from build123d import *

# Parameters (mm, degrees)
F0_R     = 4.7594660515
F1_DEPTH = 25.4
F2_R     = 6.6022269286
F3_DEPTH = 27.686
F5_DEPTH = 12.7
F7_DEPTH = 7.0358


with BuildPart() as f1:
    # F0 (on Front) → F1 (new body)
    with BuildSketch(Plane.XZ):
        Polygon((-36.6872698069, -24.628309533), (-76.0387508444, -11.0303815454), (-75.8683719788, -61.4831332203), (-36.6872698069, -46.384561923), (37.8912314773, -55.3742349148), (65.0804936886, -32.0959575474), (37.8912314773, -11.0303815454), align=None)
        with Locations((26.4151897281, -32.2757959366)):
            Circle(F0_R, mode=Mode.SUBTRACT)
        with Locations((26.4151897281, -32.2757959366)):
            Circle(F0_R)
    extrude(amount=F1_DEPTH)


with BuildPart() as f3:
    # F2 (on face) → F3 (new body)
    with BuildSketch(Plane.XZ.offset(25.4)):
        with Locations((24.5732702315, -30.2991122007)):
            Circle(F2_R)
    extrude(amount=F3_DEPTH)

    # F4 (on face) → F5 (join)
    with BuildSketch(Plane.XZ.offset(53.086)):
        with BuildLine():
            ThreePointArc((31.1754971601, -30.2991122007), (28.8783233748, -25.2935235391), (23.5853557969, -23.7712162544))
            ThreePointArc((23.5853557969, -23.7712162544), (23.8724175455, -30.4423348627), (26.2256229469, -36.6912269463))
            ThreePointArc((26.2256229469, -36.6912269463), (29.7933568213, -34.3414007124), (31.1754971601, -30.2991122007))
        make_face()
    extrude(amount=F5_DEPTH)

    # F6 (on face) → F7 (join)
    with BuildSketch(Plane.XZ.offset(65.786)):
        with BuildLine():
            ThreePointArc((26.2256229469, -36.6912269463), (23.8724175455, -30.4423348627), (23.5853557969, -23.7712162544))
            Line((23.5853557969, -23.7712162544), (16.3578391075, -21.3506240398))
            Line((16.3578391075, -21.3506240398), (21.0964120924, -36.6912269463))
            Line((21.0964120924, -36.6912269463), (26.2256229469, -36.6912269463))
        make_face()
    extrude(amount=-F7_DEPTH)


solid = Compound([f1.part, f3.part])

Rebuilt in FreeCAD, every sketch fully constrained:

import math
import FreeCAD as App
import Part
import Sketcher
Q = App.Units.Quantity

doc = App.newDocument("Part")
body = doc.addObject("PartDesign::Body", "Body")

sketch1 = body.newObject("Sketcher::SketchObject", "Sketch")
sketch1.AttachmentSupport = (doc.getObject("XZ_Plane"), [""])
sketch1.MapMode = "FlatFace"
sketch1.addGeometry(Part.LineSegment(App.Vector(-36.68727, -24.62831, 0), App.Vector(-76.038751, -11.030382, 0)), False)
sketch1.addGeometry(Part.LineSegment(App.Vector(-76.038751, -11.030382, 0), App.Vector(-75.868372, -61.483133, 0)), False)
sketch1.addGeometry(Part.LineSegment(App.Vector(-75.868372, -61.483133, 0), App.Vector(-36.68727, -46.384562, 0)), False)
sketch1.addGeometry(Part.LineSegment(App.Vector(-36.68727, -46.384562, 0), App.Vector(37.891231, -55.374235, 0)), False)
sketch1.addGeometry(Part.LineSegment(App.Vector(37.891231, -55.374235, 0), App.Vector(65.080494, -32.095958, 0)), False)
sketch1.addGeometry(Part.LineSegment(App.Vector(65.080494, -32.095958, 0), App.Vector(37.891231, -11.030382, 0)), False)
sketch1.addGeometry(Part.LineSegment(App.Vector(37.891231, -11.030382, 0), App.Vector(-36.68727, -24.62831, 0)), False)
sketch1.addConstraint(Sketcher.Constraint("Coincident", 0, 2, 1, 1))
sketch1.addConstraint(Sketcher.Constraint("Coincident", 1, 2, 2, 1))
sketch1.addConstraint(Sketcher.Constraint("Coincident", 2, 2, 3, 1))
sketch1.addConstraint(Sketcher.Constraint("Coincident", 3, 2, 4, 1))
sketch1.addConstraint(Sketcher.Constraint("Coincident", 4, 2, 5, 1))
sketch1.addConstraint(Sketcher.Constraint("Coincident", 5, 2, 6, 1))
sketch1.addConstraint(Sketcher.Constraint("Coincident", 6, 2, 0, 1))
sketch1.addConstraint(Sketcher.Constraint("Horizontal", 0, 2, 5, 2))
sketch1.addConstraint(Sketcher.Constraint("Vertical", 3, 2, 5, 2))
sketch1.addConstraint(Sketcher.Constraint("Vertical", 2, 2, 6, 2))
sketch1.addConstraint(Sketcher.Constraint("DistanceX", 2, 2, 3, 2, 74.578501))
sketch1.addConstraint(Sketcher.Constraint("DistanceY", 1, 2, 3, 2, 6.108898))
sketch1.addConstraint(Sketcher.Constraint("Distance", 1, 50.453039))
sketch1.addConstraint(Sketcher.Constraint("Distance", 2, 41.989589))
sketch1.addConstraint(Sketcher.Constraint("DistanceX", 0, 2, -1, 1, 76.038751))
sketch1.addConstraint(Sketcher.Constraint("DistanceY", 0, 2, -1, 1, 11.030382))
sketch1.addConstraint(Sketcher.Constraint("DistanceX", 1, 2, -1, 1, 75.868372))
sketch1.addConstraint(Sketcher.Constraint("DistanceX", 2, 2, -1, 1, 36.68727))
sketch1.addConstraint(Sketcher.Constraint("DistanceY", 6, 2, -1, 1, 24.62831))
sketch1.addConstraint(Sketcher.Constraint("Distance", 4, 35.792935))
sketch1.addConstraint(Sketcher.Constraint("Distance", 5, 34.394977))
pad1 = body.newObject("PartDesign::Pad", "Pad")
pad1.Profile = sketch1
pad1.Length = Q("1 in")
body2 = doc.addObject("PartDesign::Body", "Body001")

sketch2 = body2.newObject("Sketcher::SketchObject", "Sketch001")
sketch2.AttachmentSupport = (doc.getObject("XZ_Plane001"), [""])
sketch2.MapMode = "FlatFace"
sketch2.AttachmentOffset = App.Placement(App.Vector(0, 0, 1 * 25.4), App.Rotation())
sketch2.addGeometry(Part.Circle(App.Vector(24.57327, -30.299112, 0), App.Vector(0, 0, 1), 6.602227), False)
sketch2.addConstraint(Sketcher.Constraint("Diameter", 0, 13.204454))
sketch2.addConstraint(Sketcher.Constraint("DistanceX", -1, 1, 0, 3, 24.57327))
sketch2.addConstraint(Sketcher.Constraint("DistanceY", 0, 3, -1, 1, 30.299112))
pad2 = body2.newObject("PartDesign::Pad", "Pad001")
pad2.Profile = sketch2
pad2.Length = Q("1.09 in")

sketch3 = body2.newObject("Sketcher::SketchObject", "Sketch002")
sketch3.AttachmentSupport = (doc.getObject("XZ_Plane001"), [""])
sketch3.MapMode = "FlatFace"
sketch3.AttachmentOffset = App.Placement(App.Vector(0, 0, 2.09 * 25.4), App.Rotation())
sketch3.addGeometry(Part.ArcOfCircle(Part.Circle(App.Vector(24.57327, -30.299112, 0), App.Vector(0, 0, 1), 6.602227), math.radians(0), math.radians(98.605689)), False)
sketch3.addGeometry(Part.ArcOfCircle(Part.Circle(App.Vector(44.586808, -26.209248, 0), App.Vector(0, 0, 1), 21.142493), math.radians(173.378246), math.radians(209.721053)), False)
sketch3.addGeometry(Part.ArcOfCircle(Part.Circle(App.Vector(24.57327, -30.299112, 0), App.Vector(0, 0, 1), 6.602227), math.radians(-75.50639), math.radians(0)), False)
sketch3.addConstraint(Sketcher.Constraint("Coincident", 0, 2, 1, 1))
sketch3.addConstraint(Sketcher.Constraint("Coincident", 1, 2, 2, 1))
sketch3.addConstraint(Sketcher.Constraint("Tangent", 2, 2, 0, 1))
sketch3.addConstraint(Sketcher.Constraint("Equal", 0, 2))
sketch3.addConstraint(Sketcher.Constraint("Horizontal", 0, 3, 2, 2))
sketch3.addConstraint(Sketcher.Constraint("Radius", 0, 6.602227))
sketch3.addConstraint(Sketcher.Constraint("Radius", 1, 21.142493))
sketch3.addConstraint(Sketcher.Constraint("DistanceX", -1, 1, 0, 3, 24.57327))
sketch3.addConstraint(Sketcher.Constraint("DistanceX", -1, 1, 1, 3, 44.586808))
sketch3.addConstraint(Sketcher.Constraint("DistanceY", 1, 3, -1, 1, 26.209248))
sketch3.addConstraint(Sketcher.Constraint("DistanceY", 1, 3, 0, 2, 2.438032))
pad3 = body2.newObject("PartDesign::Pad", "Pad002")
pad3.Profile = sketch3
pad3.Length = Q("0.5 in")

sketch4 = body2.newObject("Sketcher::SketchObject", "Sketch003")
sketch4.AttachmentSupport = (doc.getObject("XZ_Plane001"), [""])
sketch4.MapMode = "FlatFace"
sketch4.AttachmentOffset = App.Placement(App.Vector(0, 0, 2.59 * 25.4), App.Rotation())
sketch4.addGeometry(Part.ArcOfCircle(Part.Circle(App.Vector(44.586808, -26.209248, 0), App.Vector(0, 0, 1), 21.142493), math.radians(173.378246), math.radians(209.721053)), False)
sketch4.addGeometry(Part.LineSegment(App.Vector(23.585356, -23.771216, 0), App.Vector(16.357839, -21.350624, 0)), False)
sketch4.addGeometry(Part.LineSegment(App.Vector(16.357839, -21.350624, 0), App.Vector(21.096412, -36.691227, 0)), False)
sketch4.addGeometry(Part.LineSegment(App.Vector(21.096412, -36.691227, 0), App.Vector(26.225623, -36.691227, 0)), False)
sketch4.addConstraint(Sketcher.Constraint("Coincident", 0, 1, 1, 1))
sketch4.addConstraint(Sketcher.Constraint("Coincident", 1, 2, 2, 1))
sketch4.addConstraint(Sketcher.Constraint("Coincident", 2, 2, 3, 1))
sketch4.addConstraint(Sketcher.Constraint("Coincident", 3, 2, 0, 2))
sketch4.addConstraint(Sketcher.Constraint("Horizontal", 3))
sketch4.addConstraint(Sketcher.Constraint("Radius", 0, 21.142493))
sketch4.addConstraint(Sketcher.Constraint("DistanceX", 3, 1, 3, 2, 5.129211))
sketch4.addConstraint(Sketcher.Constraint("Distance", 1, 7.622091))
sketch4.addConstraint(Sketcher.Constraint("DistanceX", -1, 1, 0, 3, 44.586808))
sketch4.addConstraint(Sketcher.Constraint("DistanceY", 0, 3, -1, 1, 26.209248))
sketch4.addConstraint(Sketcher.Constraint("DistanceX", -1, 1, 1, 2, 16.357839))
sketch4.addConstraint(Sketcher.Constraint("DistanceY", 0, 3, 0, 1, 2.438032))
sketch4.addConstraint(Sketcher.Constraint("DistanceY", 2, 2, 0, 1, 12.920011))
pad4 = body2.newObject("PartDesign::Pad", "Pad003")
pad4.Profile = sketch4
pad4.Length = Q("0.277 in")
pad4.Reversed = True

doc.recompute()
